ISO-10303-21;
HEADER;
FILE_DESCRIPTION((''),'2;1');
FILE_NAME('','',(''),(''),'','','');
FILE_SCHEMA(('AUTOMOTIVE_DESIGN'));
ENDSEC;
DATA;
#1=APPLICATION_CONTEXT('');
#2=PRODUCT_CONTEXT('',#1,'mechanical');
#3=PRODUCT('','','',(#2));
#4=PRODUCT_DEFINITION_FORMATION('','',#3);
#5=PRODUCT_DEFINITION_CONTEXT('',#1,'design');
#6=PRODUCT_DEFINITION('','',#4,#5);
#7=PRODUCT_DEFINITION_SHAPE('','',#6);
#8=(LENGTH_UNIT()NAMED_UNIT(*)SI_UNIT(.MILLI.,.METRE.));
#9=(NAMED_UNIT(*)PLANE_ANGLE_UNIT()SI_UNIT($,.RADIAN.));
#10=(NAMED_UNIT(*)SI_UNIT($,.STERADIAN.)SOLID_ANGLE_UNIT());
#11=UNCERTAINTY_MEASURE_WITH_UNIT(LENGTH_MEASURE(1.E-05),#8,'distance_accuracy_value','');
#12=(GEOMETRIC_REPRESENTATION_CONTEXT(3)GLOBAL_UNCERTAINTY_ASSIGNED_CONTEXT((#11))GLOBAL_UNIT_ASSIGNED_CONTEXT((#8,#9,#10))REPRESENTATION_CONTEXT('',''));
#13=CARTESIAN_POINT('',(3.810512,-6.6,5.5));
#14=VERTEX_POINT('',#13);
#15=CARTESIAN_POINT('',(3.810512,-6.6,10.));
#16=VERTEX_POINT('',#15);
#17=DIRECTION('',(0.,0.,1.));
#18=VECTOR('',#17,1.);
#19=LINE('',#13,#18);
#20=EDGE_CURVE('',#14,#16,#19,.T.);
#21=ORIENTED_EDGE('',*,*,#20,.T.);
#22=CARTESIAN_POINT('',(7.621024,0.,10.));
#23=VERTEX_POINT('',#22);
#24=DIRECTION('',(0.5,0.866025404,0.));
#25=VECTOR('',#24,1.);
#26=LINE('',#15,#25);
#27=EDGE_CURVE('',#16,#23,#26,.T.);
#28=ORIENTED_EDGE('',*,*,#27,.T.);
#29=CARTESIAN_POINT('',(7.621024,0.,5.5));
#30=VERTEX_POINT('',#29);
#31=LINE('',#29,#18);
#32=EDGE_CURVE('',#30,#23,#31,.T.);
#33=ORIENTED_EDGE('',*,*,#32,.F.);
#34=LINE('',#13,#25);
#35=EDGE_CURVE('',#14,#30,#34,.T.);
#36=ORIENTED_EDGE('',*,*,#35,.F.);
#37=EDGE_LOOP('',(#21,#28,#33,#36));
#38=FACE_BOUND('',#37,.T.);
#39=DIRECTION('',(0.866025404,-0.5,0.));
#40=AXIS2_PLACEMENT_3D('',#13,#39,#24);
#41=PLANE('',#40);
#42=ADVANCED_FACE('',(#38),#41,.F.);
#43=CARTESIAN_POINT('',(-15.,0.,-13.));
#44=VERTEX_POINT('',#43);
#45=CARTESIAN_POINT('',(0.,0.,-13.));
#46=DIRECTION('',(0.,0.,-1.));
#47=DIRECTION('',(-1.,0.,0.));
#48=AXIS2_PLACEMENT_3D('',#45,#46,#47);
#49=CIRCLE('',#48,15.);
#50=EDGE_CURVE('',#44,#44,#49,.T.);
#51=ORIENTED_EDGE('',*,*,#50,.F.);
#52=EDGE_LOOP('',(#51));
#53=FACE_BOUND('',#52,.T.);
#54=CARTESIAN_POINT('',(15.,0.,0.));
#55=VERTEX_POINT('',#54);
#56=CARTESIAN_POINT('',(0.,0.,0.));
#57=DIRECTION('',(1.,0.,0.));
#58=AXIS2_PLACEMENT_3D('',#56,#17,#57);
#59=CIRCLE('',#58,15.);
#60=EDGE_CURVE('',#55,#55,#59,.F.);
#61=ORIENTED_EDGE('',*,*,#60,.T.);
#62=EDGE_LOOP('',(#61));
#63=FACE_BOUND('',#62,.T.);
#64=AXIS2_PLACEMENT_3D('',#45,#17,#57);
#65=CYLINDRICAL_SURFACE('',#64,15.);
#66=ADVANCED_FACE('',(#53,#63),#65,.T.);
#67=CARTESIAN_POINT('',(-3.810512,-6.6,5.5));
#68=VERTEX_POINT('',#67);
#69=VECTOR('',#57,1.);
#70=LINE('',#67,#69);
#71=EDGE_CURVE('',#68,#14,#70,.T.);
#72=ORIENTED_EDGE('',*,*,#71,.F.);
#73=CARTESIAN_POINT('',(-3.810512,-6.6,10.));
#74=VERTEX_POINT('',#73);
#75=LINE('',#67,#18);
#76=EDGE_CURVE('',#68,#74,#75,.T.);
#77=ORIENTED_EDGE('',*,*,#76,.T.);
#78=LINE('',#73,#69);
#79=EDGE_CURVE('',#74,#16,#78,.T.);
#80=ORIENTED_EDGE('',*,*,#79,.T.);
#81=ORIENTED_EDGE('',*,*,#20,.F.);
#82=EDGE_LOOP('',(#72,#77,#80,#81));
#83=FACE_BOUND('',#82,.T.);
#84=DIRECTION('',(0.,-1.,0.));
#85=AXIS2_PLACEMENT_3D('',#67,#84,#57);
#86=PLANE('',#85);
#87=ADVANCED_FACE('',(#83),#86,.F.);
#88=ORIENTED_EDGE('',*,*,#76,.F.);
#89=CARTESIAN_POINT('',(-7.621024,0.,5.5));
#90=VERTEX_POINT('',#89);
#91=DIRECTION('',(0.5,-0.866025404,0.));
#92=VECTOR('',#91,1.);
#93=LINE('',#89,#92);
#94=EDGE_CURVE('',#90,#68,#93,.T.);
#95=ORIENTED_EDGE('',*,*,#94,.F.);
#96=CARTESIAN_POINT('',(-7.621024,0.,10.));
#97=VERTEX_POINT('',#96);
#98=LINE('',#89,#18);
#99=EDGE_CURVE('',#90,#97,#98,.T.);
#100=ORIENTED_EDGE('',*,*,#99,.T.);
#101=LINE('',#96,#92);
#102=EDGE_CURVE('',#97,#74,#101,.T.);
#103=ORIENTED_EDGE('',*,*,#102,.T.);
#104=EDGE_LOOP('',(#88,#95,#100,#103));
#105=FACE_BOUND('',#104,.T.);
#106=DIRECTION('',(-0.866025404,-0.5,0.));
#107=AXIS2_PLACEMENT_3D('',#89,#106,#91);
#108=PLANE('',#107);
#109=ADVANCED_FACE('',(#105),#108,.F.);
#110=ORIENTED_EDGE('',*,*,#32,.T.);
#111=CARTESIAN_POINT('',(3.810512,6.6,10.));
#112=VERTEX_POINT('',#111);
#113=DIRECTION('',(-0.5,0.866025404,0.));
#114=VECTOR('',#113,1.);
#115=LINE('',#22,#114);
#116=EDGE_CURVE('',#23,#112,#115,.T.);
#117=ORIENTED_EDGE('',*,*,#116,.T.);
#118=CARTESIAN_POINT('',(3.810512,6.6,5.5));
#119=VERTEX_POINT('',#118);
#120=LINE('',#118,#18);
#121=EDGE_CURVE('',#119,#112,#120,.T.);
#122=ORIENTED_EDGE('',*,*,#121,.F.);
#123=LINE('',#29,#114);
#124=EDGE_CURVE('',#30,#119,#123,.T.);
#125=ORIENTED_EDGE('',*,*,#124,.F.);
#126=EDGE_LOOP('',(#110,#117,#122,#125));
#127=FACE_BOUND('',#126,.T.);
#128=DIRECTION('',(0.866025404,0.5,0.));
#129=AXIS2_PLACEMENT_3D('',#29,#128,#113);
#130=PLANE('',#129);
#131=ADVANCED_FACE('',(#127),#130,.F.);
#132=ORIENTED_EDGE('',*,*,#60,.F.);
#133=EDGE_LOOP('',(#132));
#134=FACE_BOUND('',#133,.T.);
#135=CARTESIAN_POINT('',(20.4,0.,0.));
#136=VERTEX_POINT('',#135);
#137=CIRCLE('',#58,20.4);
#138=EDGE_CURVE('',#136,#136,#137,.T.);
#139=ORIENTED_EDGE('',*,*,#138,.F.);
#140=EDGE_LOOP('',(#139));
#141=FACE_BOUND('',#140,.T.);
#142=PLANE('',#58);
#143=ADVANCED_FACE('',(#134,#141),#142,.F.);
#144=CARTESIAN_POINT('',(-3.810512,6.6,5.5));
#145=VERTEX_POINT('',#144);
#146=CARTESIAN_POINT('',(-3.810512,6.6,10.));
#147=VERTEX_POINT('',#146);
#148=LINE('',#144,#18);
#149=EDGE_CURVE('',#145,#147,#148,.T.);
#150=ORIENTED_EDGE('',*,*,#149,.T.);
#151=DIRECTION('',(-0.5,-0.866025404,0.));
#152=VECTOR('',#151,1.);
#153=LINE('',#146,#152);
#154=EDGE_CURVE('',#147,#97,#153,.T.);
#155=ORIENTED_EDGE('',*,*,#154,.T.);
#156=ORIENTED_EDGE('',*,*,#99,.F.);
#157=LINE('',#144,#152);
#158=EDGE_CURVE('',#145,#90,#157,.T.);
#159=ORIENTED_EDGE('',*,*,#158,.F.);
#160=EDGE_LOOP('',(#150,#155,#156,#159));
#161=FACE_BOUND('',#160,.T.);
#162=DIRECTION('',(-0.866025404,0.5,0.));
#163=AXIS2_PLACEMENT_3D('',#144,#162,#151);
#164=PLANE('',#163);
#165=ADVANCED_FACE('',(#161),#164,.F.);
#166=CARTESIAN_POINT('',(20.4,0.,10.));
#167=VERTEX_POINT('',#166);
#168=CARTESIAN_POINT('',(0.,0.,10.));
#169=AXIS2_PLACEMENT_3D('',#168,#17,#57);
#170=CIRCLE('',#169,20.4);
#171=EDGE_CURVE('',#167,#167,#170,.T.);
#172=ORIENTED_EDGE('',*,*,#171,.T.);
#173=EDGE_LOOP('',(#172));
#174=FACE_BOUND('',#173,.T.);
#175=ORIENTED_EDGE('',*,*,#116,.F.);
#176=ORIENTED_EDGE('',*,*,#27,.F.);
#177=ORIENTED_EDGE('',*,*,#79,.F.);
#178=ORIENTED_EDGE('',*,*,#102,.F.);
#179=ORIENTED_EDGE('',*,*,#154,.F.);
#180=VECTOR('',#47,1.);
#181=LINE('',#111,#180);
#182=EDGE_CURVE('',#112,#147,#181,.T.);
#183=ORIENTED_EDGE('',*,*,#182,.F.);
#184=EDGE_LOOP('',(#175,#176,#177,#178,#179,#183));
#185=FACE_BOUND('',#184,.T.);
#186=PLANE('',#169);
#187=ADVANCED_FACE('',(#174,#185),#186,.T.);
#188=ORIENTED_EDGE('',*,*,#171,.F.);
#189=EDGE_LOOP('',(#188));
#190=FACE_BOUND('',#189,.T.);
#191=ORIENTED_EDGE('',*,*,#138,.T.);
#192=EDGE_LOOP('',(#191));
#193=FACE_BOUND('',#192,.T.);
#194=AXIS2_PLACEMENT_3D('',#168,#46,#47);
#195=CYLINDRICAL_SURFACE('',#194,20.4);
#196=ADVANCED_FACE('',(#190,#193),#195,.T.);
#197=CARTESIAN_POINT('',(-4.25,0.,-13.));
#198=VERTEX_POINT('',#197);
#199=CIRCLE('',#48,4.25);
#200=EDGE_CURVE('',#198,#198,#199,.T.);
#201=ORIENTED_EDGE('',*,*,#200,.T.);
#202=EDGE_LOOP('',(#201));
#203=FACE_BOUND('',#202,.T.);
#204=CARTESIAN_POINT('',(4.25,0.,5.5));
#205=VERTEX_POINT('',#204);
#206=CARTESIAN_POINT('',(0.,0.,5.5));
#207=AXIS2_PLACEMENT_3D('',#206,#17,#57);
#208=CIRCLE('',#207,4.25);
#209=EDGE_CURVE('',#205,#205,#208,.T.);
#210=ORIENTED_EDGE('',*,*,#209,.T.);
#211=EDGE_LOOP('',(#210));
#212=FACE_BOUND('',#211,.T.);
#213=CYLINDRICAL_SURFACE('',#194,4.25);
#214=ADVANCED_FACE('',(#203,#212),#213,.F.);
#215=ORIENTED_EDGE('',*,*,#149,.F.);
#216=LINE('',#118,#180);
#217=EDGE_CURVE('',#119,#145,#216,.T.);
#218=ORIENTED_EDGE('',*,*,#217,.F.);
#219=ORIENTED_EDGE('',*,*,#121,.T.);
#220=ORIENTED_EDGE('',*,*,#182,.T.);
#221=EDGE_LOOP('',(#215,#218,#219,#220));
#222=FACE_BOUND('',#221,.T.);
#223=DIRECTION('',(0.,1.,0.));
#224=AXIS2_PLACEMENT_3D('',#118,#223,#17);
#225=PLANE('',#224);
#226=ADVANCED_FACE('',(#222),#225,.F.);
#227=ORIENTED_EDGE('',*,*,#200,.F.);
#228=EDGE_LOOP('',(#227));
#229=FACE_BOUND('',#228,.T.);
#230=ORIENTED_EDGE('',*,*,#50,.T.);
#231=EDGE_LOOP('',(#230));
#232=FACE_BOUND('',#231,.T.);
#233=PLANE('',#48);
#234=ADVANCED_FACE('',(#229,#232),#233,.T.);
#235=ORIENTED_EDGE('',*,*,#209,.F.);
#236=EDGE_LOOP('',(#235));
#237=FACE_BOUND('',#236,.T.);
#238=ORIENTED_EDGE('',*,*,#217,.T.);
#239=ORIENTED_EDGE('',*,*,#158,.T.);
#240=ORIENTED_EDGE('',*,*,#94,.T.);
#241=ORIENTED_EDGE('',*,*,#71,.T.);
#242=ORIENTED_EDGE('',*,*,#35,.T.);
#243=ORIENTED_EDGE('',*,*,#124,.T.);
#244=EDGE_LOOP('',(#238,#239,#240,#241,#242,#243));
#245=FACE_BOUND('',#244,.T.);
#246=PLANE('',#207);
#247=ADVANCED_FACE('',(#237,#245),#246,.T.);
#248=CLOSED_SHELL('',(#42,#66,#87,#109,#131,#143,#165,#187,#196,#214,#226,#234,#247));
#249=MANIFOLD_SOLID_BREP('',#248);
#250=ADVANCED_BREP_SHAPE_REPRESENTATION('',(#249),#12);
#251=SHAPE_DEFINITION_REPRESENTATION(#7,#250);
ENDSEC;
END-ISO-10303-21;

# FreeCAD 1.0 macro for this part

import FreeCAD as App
import Part
import Sketcher

V = App.Vector
Q = App.Units.Quantity


def add_polygon(sketch, points):
    """Adds a closed chain of lines whose ends are joined by coincident constraints."""
    first, n = sketch.GeometryCount, len(points)
    for a, b in zip(points, points[1:] + points[:1]):
        sketch.addGeometry(Part.LineSegment(App.Vector(*a, 0), App.Vector(*b, 0)), False)
    for i in range(n):
        sketch.addConstraint(Sketcher.Constraint("Coincident", first + i, 2, first + (i + 1) % n, 1))

doc = App.newDocument("Part")
body = doc.addObject("PartDesign::Body", "Body")

# Sketch on XY plane
sketch1 = body.newObject("Sketcher::SketchObject", "Sketch")
sketch1.AttachmentSupport = (doc.getObject("XY_Plane"), [""])
sketch1.MapMode = "FlatFace"
sketch1.addGeometry(Part.Circle(V(0, 0, 0), V(0, 0, 1), 20.4), False)
sketch1.addGeometry(Part.Circle(V(0, 0, 0), V(0, 0, 1), 4.2), False)
sketch1.addConstraint(Sketcher.Constraint("Coincident", 0, 3, -1, 1))
sketch1.addConstraint(Sketcher.Constraint("Coincident", 1, 3, -1, 1))
sketch1.addConstraint(Sketcher.Constraint("Diameter", 0, Q("40.8 mm")))
sketch1.addConstraint(Sketcher.Constraint("Diameter", 1, Q("8.5 mm")))
pad1 = body.newObject("PartDesign::Pad", "Pad")
pad1.Profile = sketch1
pad1.Length = 10

# Sketch on XY plane
sketch2 = body.newObject("Sketcher::SketchObject", "Sketch001")
sketch2.AttachmentSupport = (doc.getObject("XY_Plane"), [""])
sketch2.MapMode = "FlatFace"
sketch2.AttachmentOffset = App.Placement(V(0, 0, 10), App.Rotation())
add_polygon(sketch2, [(4, -7), (8, 0), (4, 7), (-4, 7), (-8, 0), (-4, -7)])  # lines 0-5
sketch2.addConstraint(Sketcher.Constraint("Horizontal", 2))
sketch2.addConstraint(Sketcher.Constraint("Horizontal", 5))
sketch2.addConstraint(Sketcher.Constraint("Symmetric", 0, 2, 3, 2, -1, 1))
sketch2.addConstraint(Sketcher.Constraint("Symmetric", 1, 2, 4, 2, -1, 1))
sketch2.addConstraint(Sketcher.Constraint("PointOnObject", 0, 2, -1))
sketch2.addConstraint(Sketcher.Constraint("Parallel", 0, 3))
sketch2.addConstraint(Sketcher.Constraint("Vertical", 2, 2, 4, 2))
sketch2.addConstraint(Sketcher.Constraint("Angle", 0, Q("60 deg")))
sketch2.addConstraint(Sketcher.Constraint("DistanceY", -1, 1, 1, 2, Q("6.6 mm")))
sketch2.addConstraint(Sketcher.Constraint("DistanceX", 2, 2, 2, 1, Q("7.621024 mm")))
pocket1 = body.newObject("PartDesign::Pocket", "Pocket")
pocket1.Profile = sketch2
pocket1.Length = 4.5

# Sketch on XY plane
sketch3 = body.newObject("Sketcher::SketchObject", "Sketch002")
sketch3.AttachmentSupport = (doc.getObject("XY_Plane"), [""])
sketch3.MapMode = "FlatFace"
sketch3.addGeometry(Part.Circle(V(0, 0, 0), V(0, 0, 1), 15), False)
sketch3.addGeometry(Part.Circle(V(0, 0, 0), V(0, 0, 1), 4.2), False)
sketch3.addConstraint(Sketcher.Constraint("Coincident", 0, 3, -1, 1))
sketch3.addConstraint(Sketcher.Constraint("Coincident", 1, 3, -1, 1))
sketch3.addConstraint(Sketcher.Constraint("Diameter", 0, Q("30 mm")))
sketch3.addConstraint(Sketcher.Constraint("Diameter", 1, Q("8.5 mm")))
pad2 = body.newObject("PartDesign::Pad", "Pad001")
pad2.Profile = sketch3
pad2.Length = 13
pad2.Reversed = True

doc.recompute()
